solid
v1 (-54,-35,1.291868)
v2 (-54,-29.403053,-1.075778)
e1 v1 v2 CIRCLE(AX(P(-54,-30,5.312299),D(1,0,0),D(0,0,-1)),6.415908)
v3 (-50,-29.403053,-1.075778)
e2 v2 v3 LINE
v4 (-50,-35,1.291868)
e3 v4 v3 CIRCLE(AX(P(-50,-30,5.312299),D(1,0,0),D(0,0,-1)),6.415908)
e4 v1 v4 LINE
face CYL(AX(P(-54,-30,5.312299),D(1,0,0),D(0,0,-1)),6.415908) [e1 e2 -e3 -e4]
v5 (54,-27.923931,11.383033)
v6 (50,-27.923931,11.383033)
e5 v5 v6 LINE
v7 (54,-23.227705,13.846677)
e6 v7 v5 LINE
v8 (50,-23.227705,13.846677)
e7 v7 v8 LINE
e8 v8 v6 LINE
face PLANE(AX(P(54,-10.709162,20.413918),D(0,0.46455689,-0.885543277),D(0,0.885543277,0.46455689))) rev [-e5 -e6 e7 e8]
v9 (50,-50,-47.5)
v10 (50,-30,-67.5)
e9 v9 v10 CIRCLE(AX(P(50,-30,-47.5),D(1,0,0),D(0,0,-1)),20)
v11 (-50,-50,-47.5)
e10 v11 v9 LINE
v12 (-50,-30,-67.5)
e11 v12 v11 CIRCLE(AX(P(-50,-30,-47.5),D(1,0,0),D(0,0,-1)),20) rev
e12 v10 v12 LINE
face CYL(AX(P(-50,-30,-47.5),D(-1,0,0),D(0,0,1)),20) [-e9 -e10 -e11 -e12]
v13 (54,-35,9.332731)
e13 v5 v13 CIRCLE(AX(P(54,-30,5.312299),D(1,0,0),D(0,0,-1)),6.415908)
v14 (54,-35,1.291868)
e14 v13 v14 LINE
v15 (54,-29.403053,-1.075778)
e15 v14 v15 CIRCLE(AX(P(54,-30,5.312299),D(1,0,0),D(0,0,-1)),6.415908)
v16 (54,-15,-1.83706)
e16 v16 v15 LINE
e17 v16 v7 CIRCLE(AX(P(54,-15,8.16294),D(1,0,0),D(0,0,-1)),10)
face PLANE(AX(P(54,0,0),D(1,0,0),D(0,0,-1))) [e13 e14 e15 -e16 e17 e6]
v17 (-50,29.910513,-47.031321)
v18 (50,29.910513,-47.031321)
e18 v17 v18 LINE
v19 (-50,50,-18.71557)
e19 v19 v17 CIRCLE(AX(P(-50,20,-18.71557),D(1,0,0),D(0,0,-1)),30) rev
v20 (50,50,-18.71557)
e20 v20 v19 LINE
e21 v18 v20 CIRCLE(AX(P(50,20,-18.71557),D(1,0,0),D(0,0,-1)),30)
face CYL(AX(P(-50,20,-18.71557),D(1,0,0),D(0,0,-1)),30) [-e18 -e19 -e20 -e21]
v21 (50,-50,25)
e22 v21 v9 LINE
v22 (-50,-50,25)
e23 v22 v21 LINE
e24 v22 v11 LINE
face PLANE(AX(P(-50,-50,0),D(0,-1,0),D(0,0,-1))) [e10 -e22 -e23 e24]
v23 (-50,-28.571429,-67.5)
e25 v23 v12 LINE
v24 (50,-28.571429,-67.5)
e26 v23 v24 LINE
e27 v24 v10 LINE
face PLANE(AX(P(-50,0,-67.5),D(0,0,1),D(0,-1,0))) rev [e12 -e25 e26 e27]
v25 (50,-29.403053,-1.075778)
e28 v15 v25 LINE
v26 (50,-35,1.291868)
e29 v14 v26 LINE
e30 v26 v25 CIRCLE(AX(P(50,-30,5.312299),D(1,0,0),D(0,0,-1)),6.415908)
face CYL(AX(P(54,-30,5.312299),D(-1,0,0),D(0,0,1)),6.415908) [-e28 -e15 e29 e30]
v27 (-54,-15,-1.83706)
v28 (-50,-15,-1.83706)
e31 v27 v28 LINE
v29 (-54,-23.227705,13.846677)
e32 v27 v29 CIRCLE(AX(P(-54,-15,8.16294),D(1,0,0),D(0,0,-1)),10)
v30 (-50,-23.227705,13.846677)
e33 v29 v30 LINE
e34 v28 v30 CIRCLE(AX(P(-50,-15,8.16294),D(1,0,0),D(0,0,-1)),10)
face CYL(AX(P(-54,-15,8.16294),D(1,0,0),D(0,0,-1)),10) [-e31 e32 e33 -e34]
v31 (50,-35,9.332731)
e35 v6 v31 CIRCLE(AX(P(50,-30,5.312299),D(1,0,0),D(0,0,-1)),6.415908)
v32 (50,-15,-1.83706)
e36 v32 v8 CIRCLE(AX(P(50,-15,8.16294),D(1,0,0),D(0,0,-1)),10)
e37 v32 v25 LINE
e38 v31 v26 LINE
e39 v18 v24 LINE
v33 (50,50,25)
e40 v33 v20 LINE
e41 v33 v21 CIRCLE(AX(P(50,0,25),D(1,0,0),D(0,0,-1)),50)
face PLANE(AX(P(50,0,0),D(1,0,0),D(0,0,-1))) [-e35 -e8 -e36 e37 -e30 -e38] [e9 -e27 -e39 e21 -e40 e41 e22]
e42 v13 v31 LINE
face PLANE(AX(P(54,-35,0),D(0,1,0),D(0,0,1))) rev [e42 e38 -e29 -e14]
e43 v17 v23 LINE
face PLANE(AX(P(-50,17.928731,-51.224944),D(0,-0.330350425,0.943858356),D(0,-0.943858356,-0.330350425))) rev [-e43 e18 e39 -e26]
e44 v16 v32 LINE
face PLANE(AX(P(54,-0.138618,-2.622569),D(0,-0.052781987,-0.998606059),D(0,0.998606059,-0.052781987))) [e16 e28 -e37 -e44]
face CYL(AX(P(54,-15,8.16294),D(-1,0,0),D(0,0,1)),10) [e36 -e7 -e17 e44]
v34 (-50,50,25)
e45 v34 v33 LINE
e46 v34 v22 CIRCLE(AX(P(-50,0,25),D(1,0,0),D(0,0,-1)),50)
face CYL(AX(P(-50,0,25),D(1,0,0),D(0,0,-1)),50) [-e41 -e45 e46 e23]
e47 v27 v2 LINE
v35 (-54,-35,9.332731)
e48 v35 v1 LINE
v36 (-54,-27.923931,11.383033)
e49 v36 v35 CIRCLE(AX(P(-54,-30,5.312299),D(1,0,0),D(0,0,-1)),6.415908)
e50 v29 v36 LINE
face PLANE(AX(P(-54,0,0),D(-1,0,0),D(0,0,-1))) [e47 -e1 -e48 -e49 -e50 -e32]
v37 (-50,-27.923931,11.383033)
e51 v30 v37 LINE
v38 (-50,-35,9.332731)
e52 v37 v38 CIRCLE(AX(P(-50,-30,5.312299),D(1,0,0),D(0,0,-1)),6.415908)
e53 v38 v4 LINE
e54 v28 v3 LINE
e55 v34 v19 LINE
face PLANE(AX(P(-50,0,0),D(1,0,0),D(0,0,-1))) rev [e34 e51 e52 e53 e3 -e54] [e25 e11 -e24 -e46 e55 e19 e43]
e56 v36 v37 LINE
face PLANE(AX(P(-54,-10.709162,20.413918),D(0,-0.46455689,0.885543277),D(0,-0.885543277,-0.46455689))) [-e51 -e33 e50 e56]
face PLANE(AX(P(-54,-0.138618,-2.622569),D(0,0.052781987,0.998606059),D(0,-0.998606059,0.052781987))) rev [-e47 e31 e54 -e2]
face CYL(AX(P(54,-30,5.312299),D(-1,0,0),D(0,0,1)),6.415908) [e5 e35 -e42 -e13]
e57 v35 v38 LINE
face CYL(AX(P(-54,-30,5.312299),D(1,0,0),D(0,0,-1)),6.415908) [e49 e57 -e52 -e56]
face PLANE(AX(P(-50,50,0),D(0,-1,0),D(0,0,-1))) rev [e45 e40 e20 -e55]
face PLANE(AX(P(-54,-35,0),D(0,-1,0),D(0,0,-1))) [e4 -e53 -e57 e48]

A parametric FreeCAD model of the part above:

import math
import FreeCAD as App
import Part
import Sketcher


def edges_at(feature, points):
    """Names of the edges that pass closest to the given points."""
    edges = feature.Shape.Edges
    near = lambda p: min(range(len(edges)), key=lambda i: edges[i].distToShape(Part.Vertex(*p))[0])
    return sorted({f"Edge{near(p) + 1}" for p in points})

doc = App.newDocument("Part")
params = doc.addObject("Spreadsheet::Sheet", "Params")
for row, (alias, value) in enumerate([
    ("sketch1_radius", "50 mm"),
    ("sketch1_height", "65 mm"),
    ("sketch1_height2", "92.5 mm"),
    ("pad1_length", "50 mm"),
    ("pad1_length2", "50 mm"),
    ("fillet_radius", "30 mm"),
    ("sketch2_radius", "10 mm"),
    ("pad2_length", "4 mm"),
    ("fillet2_radius", "20 mm"),
], start=1):
    params.set(f"A{row}", alias)
    params.set(f"B{row}", "=" + value)
    params.setAlias(f"B{row}", alias)

body = doc.addObject("PartDesign::Body", "Body")

# Sketch on YZ plane
sketch1 = doc.addObject("Sketcher::SketchObject", "Sketch")
body.addObject(sketch1)
sketch1.AttachmentSupport = (doc.YZ_Plane, [""])
sketch1.MapMode = "FlatFace"
sketch1.addGeometry([
    Part.LineSegment(App.Vector(-29, -68, 0), App.Vector(50, -40, 0)),  # 0
    Part.LineSegment(App.Vector(50, -40, 0), App.Vector(50, 25, 0)),  # 1
    Part.ArcOfCircle(Part.Circle(App.Vector(0, 25, 0), App.Vector(0, 0, 1), 50), math.radians(0), math.radians(180)),  # 2
    Part.LineSegment(App.Vector(-50, 25, 0), App.Vector(-50, -68, 0)),  # 3
    Part.LineSegment(App.Vector(-50, -68, 0), App.Vector(-29, -68, 0)),  # 4
], False)
sketch1.addConstraint([
    Sketcher.Constraint("Coincident", 0, 2, 1, 1),
    Sketcher.Constraint("Tangent", 1, 2, 2, 1),
    Sketcher.Constraint("Tangent", 2, 2, 3, 1),
    Sketcher.Constraint("Coincident", 3, 2, 4, 1),
    Sketcher.Constraint("Coincident", 4, 2, 0, 1),
    Sketcher.Constraint("Vertical", 1),
    Sketcher.Constraint("Vertical", 3),
    Sketcher.Constraint("Horizontal", 4),
    Sketcher.Constraint("PointOnObject", 2, 3, -2),
    Sketcher.Constraint("Radius", 2, 50.0),
    Sketcher.Constraint("DistanceY", 1, 1, 1, 2, 65.0),
    Sketcher.Constraint("DistanceY", 3, 2, 3, 1, 92.5),
    Sketcher.Constraint("DistanceY", -1, 1, 2, 3, 25.0),
    Sketcher.Constraint("DistanceX", 4, 1, 4, 2, 21.428571),
])
sketch1.setExpression("Constraints[9]", "Params.sketch1_radius")
sketch1.setExpression("Constraints[10]", "Params.sketch1_height")
sketch1.setExpression("Constraints[11]", "Params.sketch1_height2")
pad1 = doc.addObject("PartDesign::Pad", "Pad")
body.addObject(pad1)
pad1.Profile = sketch1
pad1.Type = "TwoLengths"
pad1.setExpression("Length", "Params.pad1_length")
pad1.setExpression("Length2", "Params.pad1_length2")
doc.recompute()

fillet = doc.addObject("PartDesign::Fillet", "Fillet")
body.addObject(fillet)
fillet.Base = (pad1, edges_at(pad1, [(0, 50, -40)]))
fillet.setExpression("Radius", "Params.fillet_radius")

# Sketch on YZ plane
sketch2 = doc.addObject("Sketcher::SketchObject", "Sketch001")
body.addObject(sketch2)
sketch2.AttachmentSupport = (doc.YZ_Plane, [""])
sketch2.MapMode = "FlatFace"
sketch2.AttachmentOffset = App.Placement(App.Vector(0, 0, 50), App.Rotation())
sketch2.addGeometry([
    Part.ArcOfCircle(Part.Circle(App.Vector(-30, 5, 0), App.Vector(0, 0, 1), 6), math.radians(-141), math.radians(-85)),  # 0
    Part.LineSegment(App.Vector(-29, -1, 0), App.Vector(-15, -2, 0)),  # 1
    Part.ArcOfCircle(Part.Circle(App.Vector(-15, 8, 0), App.Vector(0, 0, 1), 10), math.radians(-90), math.radians(145)),  # 2
    Part.LineSegment(App.Vector(-23, 14, 0), App.Vector(-28, 11, 0)),  # 3
    Part.ArcOfCircle(Part.Circle(App.Vector(-30, 5, 0), App.Vector(0, 0, 1), 6), math.radians(71), math.radians(141)),  # 4
    Part.LineSegment(App.Vector(-35, 9, 0), App.Vector(-35, 1, 0)),  # 5
], False)
sketch2.addConstraint([
    Sketcher.Constraint("Coincident", 0, 2, 1, 1),
    Sketcher.Constraint("Coincident", 1, 2, 2, 1),
    Sketcher.Constraint("Coincident", 2, 2, 3, 1),
    Sketcher.Constraint("Coincident", 3, 2, 4, 1),
    Sketcher.Constraint("Coincident", 4, 2, 5, 1),
    Sketcher.Constraint("Coincident", 5, 2, 0, 1),
    Sketcher.Constraint("Vertical", 5),
    Sketcher.Constraint("Coincident", 4, 3, 0, 3),
    Sketcher.Constraint("Equal", 0, 4),
    Sketcher.Constraint("Vertical", 2, 3, 1, 2),
    Sketcher.Constraint("Radius", 2, 10.0),
    Sketcher.Constraint("DistanceX", 0, 3, -1, 1, 30.0),
    Sketcher.Constraint("DistanceX", 2, 3, -1, 1, 15.0),
    Sketcher.Constraint("DistanceX", 4, 2, -1, 1, 35.0),
    Sketcher.Constraint("Radius", 0, 6.415908),
    Sketcher.Constraint("DistanceY", -1, 1, 0, 3, 5.312299),
    Sketcher.Constraint("DistanceY", 4, 2, 3, 2, 2.050302),
    Sketcher.Constraint("DistanceY", -1, 1, 2, 3, 8.16294),
    Sketcher.Constraint("DistanceY", 0, 3, 2, 2, 8.534378),
    Sketcher.Constraint("DistanceX", 0, 2, 2, 2, 6.175348),
])
sketch2.setExpression("Constraints[10]", "Params.sketch2_radius")
pad2 = doc.addObject("PartDesign::Pad", "Pad001")
body.addObject(pad2)
pad2.Profile = sketch2
pad2.setExpression("Length", "Params.pad2_length")
doc.recompute()

mirrored = doc.addObject("PartDesign::Mirrored", "Mirrored")
body.addObject(mirrored)
mirrored.Originals = [pad2]
mirrored.MirrorPlane = (doc.YZ_Plane, [""])
body.Tip = mirrored
doc.recompute()

fillet2 = doc.addObject("PartDesign::Fillet", "Fillet001")
body.addObject(fillet2)
fillet2.Base = (mirrored, edges_at(mirrored, [(0, -50, -67.5)]))
fillet2.setExpression("Radius", "Params.fillet2_radius")

doc.recompute()
